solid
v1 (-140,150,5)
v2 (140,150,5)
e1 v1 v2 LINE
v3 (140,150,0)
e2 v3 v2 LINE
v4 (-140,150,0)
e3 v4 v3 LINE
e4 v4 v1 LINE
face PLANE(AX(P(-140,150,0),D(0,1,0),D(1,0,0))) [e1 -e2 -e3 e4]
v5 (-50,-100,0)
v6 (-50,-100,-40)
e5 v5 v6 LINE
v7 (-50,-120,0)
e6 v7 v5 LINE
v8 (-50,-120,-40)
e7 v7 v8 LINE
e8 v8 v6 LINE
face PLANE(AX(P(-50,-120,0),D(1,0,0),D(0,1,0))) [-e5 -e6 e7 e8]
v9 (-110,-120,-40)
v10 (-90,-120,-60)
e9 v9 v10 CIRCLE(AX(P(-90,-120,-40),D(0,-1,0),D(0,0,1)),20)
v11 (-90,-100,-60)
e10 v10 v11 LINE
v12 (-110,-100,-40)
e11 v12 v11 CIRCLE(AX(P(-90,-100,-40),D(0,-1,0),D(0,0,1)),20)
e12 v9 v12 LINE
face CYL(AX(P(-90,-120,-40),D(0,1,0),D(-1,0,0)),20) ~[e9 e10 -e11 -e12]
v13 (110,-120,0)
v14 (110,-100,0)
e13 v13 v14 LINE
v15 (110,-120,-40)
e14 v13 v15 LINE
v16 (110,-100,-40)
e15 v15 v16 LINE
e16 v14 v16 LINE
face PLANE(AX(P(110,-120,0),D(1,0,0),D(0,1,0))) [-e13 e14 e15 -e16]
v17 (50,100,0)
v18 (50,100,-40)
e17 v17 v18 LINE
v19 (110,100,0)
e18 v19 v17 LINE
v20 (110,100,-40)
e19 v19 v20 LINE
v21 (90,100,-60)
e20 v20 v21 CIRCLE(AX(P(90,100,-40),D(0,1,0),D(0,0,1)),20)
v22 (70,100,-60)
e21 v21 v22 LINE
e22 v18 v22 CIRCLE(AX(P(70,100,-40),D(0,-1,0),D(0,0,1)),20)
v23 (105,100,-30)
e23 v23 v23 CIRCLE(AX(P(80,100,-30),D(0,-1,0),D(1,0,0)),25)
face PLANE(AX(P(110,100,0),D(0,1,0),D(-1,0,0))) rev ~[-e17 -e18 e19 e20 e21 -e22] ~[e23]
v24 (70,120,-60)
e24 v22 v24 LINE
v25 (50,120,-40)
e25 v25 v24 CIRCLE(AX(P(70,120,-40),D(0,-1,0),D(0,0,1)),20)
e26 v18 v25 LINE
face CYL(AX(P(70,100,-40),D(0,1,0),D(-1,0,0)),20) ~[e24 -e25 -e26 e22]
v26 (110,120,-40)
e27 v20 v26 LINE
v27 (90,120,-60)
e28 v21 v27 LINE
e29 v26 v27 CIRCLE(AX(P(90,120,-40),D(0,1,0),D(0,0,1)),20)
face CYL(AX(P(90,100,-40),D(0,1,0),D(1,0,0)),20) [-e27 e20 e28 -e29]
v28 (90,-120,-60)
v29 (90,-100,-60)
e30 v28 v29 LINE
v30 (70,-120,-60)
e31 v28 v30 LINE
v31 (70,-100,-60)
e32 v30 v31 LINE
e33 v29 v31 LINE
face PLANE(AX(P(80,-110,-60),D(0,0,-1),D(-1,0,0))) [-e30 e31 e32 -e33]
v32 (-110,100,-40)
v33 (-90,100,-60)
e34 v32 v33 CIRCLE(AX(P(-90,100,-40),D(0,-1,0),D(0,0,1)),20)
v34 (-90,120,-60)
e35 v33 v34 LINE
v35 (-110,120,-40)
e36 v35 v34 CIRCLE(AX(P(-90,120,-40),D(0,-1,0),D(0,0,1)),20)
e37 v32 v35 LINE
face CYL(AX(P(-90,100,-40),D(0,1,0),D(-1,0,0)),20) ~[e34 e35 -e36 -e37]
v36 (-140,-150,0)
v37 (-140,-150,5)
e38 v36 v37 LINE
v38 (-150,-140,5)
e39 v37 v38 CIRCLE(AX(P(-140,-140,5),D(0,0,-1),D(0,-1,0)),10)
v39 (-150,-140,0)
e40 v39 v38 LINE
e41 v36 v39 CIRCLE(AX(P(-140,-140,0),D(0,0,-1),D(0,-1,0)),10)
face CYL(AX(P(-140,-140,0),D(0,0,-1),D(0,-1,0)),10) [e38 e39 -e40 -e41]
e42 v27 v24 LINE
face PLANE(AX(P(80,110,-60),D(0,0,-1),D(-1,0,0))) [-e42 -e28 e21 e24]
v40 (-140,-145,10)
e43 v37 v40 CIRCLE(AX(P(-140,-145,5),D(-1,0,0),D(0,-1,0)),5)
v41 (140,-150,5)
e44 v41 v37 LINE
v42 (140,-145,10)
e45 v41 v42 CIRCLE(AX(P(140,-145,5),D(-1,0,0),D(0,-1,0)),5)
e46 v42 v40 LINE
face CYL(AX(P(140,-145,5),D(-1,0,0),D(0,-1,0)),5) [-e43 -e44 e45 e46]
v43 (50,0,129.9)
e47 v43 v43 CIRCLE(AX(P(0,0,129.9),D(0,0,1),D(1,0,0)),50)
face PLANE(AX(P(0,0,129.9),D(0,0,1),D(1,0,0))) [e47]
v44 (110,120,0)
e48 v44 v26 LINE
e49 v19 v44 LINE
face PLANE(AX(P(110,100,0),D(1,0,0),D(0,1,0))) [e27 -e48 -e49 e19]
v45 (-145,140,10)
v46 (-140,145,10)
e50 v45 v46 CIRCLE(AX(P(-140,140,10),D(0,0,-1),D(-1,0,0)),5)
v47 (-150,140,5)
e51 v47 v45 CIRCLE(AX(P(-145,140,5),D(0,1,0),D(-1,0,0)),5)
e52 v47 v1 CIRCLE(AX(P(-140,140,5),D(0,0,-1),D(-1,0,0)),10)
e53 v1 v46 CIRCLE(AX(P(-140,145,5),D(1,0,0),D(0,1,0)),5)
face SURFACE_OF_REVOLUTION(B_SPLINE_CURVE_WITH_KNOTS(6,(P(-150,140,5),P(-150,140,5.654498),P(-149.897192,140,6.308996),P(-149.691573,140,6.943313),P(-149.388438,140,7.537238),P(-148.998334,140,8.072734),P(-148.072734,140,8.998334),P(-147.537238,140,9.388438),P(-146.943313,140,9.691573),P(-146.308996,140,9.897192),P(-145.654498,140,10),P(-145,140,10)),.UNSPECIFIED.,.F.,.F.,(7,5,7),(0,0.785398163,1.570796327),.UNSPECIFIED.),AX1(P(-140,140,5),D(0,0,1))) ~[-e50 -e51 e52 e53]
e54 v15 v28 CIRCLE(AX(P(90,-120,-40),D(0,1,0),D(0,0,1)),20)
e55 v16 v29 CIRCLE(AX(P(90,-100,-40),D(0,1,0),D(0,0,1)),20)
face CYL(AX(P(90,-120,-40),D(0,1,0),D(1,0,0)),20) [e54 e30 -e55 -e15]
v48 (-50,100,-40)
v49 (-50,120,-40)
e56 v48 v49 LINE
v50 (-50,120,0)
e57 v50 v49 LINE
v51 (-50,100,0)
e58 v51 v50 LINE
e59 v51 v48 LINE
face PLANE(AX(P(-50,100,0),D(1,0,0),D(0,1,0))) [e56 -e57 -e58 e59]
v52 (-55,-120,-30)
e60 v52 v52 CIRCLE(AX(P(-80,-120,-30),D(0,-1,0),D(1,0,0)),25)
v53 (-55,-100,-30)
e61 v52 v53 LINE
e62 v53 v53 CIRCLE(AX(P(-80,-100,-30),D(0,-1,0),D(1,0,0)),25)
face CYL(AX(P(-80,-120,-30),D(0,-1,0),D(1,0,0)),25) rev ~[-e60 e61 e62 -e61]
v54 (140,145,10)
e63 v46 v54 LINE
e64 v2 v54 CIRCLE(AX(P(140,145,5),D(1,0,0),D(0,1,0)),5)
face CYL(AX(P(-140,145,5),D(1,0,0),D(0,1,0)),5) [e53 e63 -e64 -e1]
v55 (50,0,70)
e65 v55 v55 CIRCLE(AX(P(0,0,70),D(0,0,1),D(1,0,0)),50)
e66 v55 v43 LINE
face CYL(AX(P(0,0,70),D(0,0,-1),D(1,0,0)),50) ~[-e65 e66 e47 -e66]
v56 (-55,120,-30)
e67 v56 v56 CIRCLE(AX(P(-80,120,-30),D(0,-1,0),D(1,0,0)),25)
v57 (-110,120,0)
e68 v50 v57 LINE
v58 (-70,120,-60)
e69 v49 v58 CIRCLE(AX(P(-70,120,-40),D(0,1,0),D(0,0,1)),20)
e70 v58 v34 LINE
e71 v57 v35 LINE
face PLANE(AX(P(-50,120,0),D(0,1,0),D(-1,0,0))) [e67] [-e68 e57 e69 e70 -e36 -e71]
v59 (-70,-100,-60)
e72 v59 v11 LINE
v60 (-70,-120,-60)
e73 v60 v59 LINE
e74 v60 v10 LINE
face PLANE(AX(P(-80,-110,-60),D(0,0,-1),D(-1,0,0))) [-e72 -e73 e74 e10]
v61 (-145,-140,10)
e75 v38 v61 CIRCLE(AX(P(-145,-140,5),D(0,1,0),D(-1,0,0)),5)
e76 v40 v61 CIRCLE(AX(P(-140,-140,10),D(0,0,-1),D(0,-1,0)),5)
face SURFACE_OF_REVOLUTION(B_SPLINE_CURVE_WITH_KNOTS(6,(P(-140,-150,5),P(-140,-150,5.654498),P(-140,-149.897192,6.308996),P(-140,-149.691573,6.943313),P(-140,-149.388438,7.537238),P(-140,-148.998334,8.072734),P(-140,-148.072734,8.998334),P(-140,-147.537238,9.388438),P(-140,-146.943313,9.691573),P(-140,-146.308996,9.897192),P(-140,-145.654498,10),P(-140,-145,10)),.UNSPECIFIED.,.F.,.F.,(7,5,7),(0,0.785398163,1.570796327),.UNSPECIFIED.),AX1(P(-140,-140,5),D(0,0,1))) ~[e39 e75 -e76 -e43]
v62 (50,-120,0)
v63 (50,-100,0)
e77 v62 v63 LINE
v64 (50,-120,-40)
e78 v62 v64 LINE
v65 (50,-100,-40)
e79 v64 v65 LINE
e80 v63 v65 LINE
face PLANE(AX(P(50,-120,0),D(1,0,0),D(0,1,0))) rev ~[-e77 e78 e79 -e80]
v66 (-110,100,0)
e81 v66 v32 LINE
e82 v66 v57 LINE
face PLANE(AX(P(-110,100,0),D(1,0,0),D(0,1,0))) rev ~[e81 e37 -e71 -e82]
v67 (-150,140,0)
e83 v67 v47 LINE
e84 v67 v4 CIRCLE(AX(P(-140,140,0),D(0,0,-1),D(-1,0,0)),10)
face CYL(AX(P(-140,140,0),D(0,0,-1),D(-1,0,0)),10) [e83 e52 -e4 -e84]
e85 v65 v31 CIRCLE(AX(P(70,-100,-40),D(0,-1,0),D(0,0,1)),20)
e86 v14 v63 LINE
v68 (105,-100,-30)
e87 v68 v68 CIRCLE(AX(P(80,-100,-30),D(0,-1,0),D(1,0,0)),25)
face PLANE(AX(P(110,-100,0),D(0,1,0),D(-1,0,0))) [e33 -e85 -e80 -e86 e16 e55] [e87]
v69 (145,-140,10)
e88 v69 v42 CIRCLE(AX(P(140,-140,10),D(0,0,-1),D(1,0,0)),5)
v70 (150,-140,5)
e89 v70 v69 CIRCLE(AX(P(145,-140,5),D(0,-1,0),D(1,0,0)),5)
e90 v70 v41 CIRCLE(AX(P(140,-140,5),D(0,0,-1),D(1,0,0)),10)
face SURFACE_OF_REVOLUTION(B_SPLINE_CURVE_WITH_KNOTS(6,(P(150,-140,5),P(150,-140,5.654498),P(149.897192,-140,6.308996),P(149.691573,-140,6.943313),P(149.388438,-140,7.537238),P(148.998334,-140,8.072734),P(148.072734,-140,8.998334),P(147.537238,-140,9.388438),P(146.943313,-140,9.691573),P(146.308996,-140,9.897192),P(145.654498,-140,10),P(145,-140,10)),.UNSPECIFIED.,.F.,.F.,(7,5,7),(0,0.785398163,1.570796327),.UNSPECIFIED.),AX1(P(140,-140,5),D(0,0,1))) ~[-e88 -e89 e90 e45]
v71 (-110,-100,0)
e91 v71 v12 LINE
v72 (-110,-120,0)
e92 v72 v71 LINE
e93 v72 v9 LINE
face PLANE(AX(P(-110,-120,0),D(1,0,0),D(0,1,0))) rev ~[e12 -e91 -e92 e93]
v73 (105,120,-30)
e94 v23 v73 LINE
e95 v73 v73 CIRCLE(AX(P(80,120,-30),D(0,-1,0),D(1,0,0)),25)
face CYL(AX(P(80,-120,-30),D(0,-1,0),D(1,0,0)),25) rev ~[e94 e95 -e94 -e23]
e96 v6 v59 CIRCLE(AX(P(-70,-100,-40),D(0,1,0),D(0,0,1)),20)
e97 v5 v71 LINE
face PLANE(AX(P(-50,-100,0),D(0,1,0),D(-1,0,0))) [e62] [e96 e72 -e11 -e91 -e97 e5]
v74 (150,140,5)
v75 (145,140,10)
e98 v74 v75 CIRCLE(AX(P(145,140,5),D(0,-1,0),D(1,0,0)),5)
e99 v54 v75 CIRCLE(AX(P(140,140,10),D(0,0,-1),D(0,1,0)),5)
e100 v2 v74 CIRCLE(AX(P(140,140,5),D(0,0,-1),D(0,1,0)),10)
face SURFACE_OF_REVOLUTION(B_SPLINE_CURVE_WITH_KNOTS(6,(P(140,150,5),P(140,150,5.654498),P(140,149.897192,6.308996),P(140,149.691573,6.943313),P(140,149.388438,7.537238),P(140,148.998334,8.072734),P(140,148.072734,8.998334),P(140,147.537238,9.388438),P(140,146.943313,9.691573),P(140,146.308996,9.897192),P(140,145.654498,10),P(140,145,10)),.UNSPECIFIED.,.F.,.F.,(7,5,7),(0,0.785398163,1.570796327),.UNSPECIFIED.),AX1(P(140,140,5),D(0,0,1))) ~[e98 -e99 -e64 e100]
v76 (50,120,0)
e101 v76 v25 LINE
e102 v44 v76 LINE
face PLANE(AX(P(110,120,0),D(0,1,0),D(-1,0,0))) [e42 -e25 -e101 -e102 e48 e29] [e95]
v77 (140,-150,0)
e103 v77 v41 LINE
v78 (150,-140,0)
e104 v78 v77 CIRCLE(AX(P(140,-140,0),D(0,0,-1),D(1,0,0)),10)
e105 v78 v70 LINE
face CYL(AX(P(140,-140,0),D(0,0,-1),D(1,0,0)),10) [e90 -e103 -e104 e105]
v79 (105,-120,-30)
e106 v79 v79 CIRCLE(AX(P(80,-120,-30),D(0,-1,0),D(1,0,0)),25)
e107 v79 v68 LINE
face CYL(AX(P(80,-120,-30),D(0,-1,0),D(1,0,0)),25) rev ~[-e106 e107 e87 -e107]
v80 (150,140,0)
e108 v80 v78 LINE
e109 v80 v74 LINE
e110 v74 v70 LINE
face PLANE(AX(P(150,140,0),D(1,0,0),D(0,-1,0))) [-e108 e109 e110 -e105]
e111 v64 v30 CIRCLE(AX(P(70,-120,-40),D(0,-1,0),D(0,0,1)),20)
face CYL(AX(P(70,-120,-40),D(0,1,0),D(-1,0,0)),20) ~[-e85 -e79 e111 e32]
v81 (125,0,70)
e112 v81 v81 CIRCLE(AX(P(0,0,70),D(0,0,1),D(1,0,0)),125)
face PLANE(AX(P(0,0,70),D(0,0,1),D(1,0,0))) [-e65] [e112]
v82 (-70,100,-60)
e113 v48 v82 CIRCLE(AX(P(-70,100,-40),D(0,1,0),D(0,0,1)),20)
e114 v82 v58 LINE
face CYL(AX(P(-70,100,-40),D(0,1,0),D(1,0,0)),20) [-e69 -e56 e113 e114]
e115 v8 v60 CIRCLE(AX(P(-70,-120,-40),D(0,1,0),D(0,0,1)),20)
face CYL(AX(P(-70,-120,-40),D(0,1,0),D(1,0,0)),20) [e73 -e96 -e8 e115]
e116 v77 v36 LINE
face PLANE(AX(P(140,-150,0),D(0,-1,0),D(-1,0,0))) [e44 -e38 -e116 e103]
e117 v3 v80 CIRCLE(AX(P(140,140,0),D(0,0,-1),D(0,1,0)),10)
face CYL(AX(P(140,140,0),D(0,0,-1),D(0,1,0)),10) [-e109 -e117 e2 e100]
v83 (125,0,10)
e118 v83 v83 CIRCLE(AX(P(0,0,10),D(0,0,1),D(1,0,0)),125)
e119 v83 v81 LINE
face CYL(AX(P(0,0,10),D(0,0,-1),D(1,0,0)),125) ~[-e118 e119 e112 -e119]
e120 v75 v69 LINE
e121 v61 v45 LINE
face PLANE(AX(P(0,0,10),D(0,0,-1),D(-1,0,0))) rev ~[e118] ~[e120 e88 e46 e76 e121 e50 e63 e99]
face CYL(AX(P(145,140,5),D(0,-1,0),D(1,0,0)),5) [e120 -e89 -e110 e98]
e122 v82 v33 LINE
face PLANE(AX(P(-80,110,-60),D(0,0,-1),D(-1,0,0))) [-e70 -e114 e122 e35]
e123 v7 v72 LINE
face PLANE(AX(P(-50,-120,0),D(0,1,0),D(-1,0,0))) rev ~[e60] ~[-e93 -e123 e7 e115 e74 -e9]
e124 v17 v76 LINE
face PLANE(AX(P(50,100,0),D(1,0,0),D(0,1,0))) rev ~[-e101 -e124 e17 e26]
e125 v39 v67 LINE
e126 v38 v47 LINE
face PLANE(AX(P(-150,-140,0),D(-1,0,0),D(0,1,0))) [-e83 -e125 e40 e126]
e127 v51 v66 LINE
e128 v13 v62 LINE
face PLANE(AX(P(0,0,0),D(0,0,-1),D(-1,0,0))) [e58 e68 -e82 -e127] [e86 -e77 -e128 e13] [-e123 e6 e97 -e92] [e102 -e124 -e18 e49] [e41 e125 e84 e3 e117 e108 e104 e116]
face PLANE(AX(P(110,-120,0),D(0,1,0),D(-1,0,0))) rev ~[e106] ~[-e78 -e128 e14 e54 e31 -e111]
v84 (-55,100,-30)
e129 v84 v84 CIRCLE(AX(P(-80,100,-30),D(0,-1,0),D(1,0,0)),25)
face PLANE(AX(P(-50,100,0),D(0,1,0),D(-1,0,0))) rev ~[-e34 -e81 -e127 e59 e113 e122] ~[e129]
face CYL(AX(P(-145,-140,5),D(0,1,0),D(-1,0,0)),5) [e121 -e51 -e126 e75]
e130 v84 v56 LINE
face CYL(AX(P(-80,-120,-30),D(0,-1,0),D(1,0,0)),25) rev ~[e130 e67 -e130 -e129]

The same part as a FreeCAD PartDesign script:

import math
import FreeCAD as App
import Part
import Sketcher
Q = App.Units.Quantity


def edges_at(feature, points):
    """Names of the edges that pass closest to the given points."""
    edges = feature.Shape.Edges
    near = lambda p: min(range(len(edges)), key=lambda i: edges[i].distToShape(Part.Vertex(*p))[0])
    return sorted({f"Edge{near(p) + 1}" for p in points})

doc = App.newDocument("Part")
body = doc.addObject("PartDesign::Body", "Body")

# Sketch on XY plane
sketch1 = body.newObject("Sketcher::SketchObject", "Sketch")
sketch1.AttachmentSupport = (doc.getObject("XY_Plane"), [""])
sketch1.MapMode = "FlatFace"
sketch1.addGeometry([
    Part.LineSegment(App.Vector(140, 150, 0), App.Vector(-140, 150, 0)),  # 0
    Part.ArcOfCircle(Part.Circle(App.Vector(-140, 140, 0), App.Vector(0, 0, 1), 10), math.radians(90), math.radians(180)),  # 1
    Part.LineSegment(App.Vector(-150, 140, 0), App.Vector(-150, -140, 0)),  # 2
    Part.ArcOfCircle(Part.Circle(App.Vector(-140, -140, 0), App.Vector(0, 0, 1), 10), math.radians(180), math.radians(270)),  # 3
    Part.LineSegment(App.Vector(-140, -150, 0), App.Vector(140, -150, 0)),  # 4
    Part.ArcOfCircle(Part.Circle(App.Vector(140, -140, 0), App.Vector(0, 0, 1), 10), math.radians(-90), math.radians(0)),  # 5
    Part.LineSegment(App.Vector(150, -140, 0), App.Vector(150, 140, 0)),  # 6
    Part.ArcOfCircle(Part.Circle(App.Vector(140, 140, 0), App.Vector(0, 0, 1), 10), math.radians(0), math.radians(90)),  # 7
], False)
sketch1.addConstraint([
    Sketcher.Constraint("Tangent", 0, 2, 1, 1),
    Sketcher.Constraint("Tangent", 1, 2, 2, 1),
    Sketcher.Constraint("Tangent", 2, 2, 3, 1),
    Sketcher.Constraint("Tangent", 3, 2, 4, 1),
    Sketcher.Constraint("Tangent", 4, 2, 5, 1),
    Sketcher.Constraint("Tangent", 5, 2, 6, 1),
    Sketcher.Constraint("Tangent", 6, 2, 7, 1),
    Sketcher.Constraint("Tangent", 7, 2, 0, 1),
    Sketcher.Constraint("Horizontal", 0),
    Sketcher.Constraint("Vertical", 2),
    Sketcher.Constraint("Horizontal", 4),
    Sketcher.Constraint("Vertical", 6),
    Sketcher.Constraint("Equal", 1, 3),
    Sketcher.Constraint("Equal", 3, 5),
    Sketcher.Constraint("Equal", 5, 7),
    Sketcher.Constraint("Symmetric", 1, 3, 5, 3, -1, 1),
    Sketcher.Constraint("Equal", 4, 2),
    Sketcher.Constraint("Radius", 1, Q("10 mm")),
    Sketcher.Constraint("DistanceX", 0, 2, 0, 1, Q("280 mm")),
])
pad1 = body.newObject("PartDesign::Pad", "Pad")
pad1.Profile = sketch1
pad1.Length = 10
doc.recompute()

fillet = body.newObject("PartDesign::Fillet", "Fillet")
fillet.Base = (pad1, edges_at(pad1, [
    (147.071, -147.071, 10),
    (150, 0, 10),
    (147.071, 147.071, 10),
    (0, 150, 10),
    (-147.071, 147.071, 10),
    (-150, 0, 10),
    (-147.071, -147.071, 10),
    (0, -150, 10),
]))
fillet.Radius = 5

# Sketch on XY plane
sketch2 = body.newObject("Sketcher::SketchObject", "Sketch001")
sketch2.AttachmentSupport = (doc.getObject("XY_Plane"), [""])
sketch2.MapMode = "FlatFace"
sketch2.addGeometry([
    Part.LineSegment(App.Vector(-50, 120, 0), App.Vector(-50, 100, 0)),  # 0
    Part.LineSegment(App.Vector(-50, 100, 0), App.Vector(-110, 100, 0)),  # 1
    Part.LineSegment(App.Vector(-110, 100, 0), App.Vector(-110, 120, 0)),  # 2
    Part.LineSegment(App.Vector(-110, 120, 0), App.Vector(-50, 120, 0)),  # 3
    Part.LineSegment(App.Vector(110, 120, 0), App.Vector(110, 100, 0)),  # 4
    Part.LineSegment(App.Vector(110, 100, 0), App.Vector(50, 100, 0)),  # 5
    Part.LineSegment(App.Vector(50, 100, 0), App.Vector(50, 120, 0)),  # 6
    Part.LineSegment(App.Vector(50, 120, 0), App.Vector(110, 120, 0)),  # 7
    Part.LineSegment(App.Vector(-50, -100, 0), App.Vector(-50, -120, 0)),  # 8
    Part.LineSegment(App.Vector(-50, -120, 0), App.Vector(-110, -120, 0)),  # 9
    Part.LineSegment(App.Vector(-110, -120, 0), App.Vector(-110, -100, 0)),  # 10
    Part.LineSegment(App.Vector(-110, -100, 0), App.Vector(-50, -100, 0)),  # 11
    Part.LineSegment(App.Vector(110, -100, 0), App.Vector(110, -120, 0)),  # 12
    Part.LineSegment(App.Vector(110, -120, 0), App.Vector(50, -120, 0)),  # 13
    Part.LineSegment(App.Vector(50, -120, 0), App.Vector(50, -100, 0)),  # 14
    Part.LineSegment(App.Vector(50, -100, 0), App.Vector(110, -100, 0)),  # 15
], False)
sketch2.addConstraint([
    Sketcher.Constraint("Coincident", 0, 2, 1, 1),
    Sketcher.Constraint("Coincident", 1, 2, 2, 1),
    Sketcher.Constraint("Coincident", 2, 2, 3, 1),
    Sketcher.Constraint("Coincident", 3, 2, 0, 1),
    Sketcher.Constraint("Coincident", 4, 2, 5, 1),
    Sketcher.Constraint("Coincident", 5, 2, 6, 1),
    Sketcher.Constraint("Coincident", 6, 2, 7, 1),
    Sketcher.Constraint("Coincident", 7, 2, 4, 1),
    Sketcher.Constraint("Coincident", 8, 2, 9, 1),
    Sketcher.Constraint("Coincident", 9, 2, 10, 1),
    Sketcher.Constraint("Coincident", 10, 2, 11, 1),
    Sketcher.Constraint("Coincident", 11, 2, 8, 1),
    Sketcher.Constraint("Coincident", 12, 2, 13, 1),
    Sketcher.Constraint("Coincident", 13, 2, 14, 1),
    Sketcher.Constraint("Coincident", 14, 2, 15, 1),
    Sketcher.Constraint("Coincident", 15, 2, 12, 1),
    Sketcher.Constraint("Vertical", 0),
    Sketcher.Constraint("Horizontal", 1),
    Sketcher.Constraint("Vertical", 2),
    Sketcher.Constraint("Horizontal", 3),
    Sketcher.Constraint("Vertical", 4),
    Sketcher.Constraint("Horizontal", 5),
    Sketcher.Constraint("Vertical", 6),
    Sketcher.Constraint("Horizontal", 7),
    Sketcher.Constraint("Vertical", 8),
    Sketcher.Constraint("Horizontal", 9),
    Sketcher.Constraint("Vertical", 10),
    Sketcher.Constraint("Horizontal", 11),
    Sketcher.Constraint("Vertical", 12),
    Sketcher.Constraint("Horizontal", 13),
    Sketcher.Constraint("Vertical", 14),
    Sketcher.Constraint("Horizontal", 15),
    Sketcher.Constraint("Symmetric", 6, 2, 8, 2, -1, 1),
    Sketcher.Constraint("Symmetric", 4, 2, 10, 2, -1, 1),
    Sketcher.Constraint("Symmetric", 2, 2, 12, 2, -1, 1),
    Sketcher.Constraint("Symmetric", 0, 2, 14, 2, -1, 1),
    Sketcher.Constraint("Symmetric", 1, 2, 4, 2, -2),
    Sketcher.Constraint("Symmetric", 3, 2, 6, 2, -2),
    Sketcher.Constraint("DistanceX", 1, 2, 1, 1, Q("60 mm")),
    Sketcher.Constraint("DistanceY", 0, 2, 0, 1, Q("20 mm")),
    Sketcher.Constraint("DistanceX", 0, 2, -1, 1, Q("50 mm")),
    Sketcher.Constraint("DistanceY", -1, 1, 0, 2, Q("100 mm")),
])
pad2 = body.newObject("PartDesign::Pad", "Pad001")
pad2.Profile = sketch2
pad2.Length = 60
pad2.Reversed = True
doc.recompute()

fillet2 = body.newObject("PartDesign::Fillet", "Fillet001")
fillet2.Base = (pad2, edges_at(pad2, [
    (-110, 110, -60),
    (-50, 110, -60),
    (50, 110, -60),
    (110, 110, -60),
    (-50, -110, -60),
    (-110, -110, -60),
    (110, -110, -60),
    (50, -110, -60),
]))
fillet2.Radius = 20

# Sketch on XZ plane
sketch3 = body.newObject("Sketcher::SketchObject", "Sketch002")
sketch3.AttachmentSupport = (doc.getObject("XZ_Plane"), [""])
sketch3.MapMode = "FlatFace"
sketch3.AttachmentOffset = App.Placement(App.Vector(0, 0, 120), App.Rotation())
sketch3.addGeometry([
    Part.Circle(App.Vector(-80, -30, 0), App.Vector(0, 0, 1), 25),
    Part.Circle(App.Vector(80, -30, 0), App.Vector(0, 0, 1), 25),
], False)
sketch3.addConstraint([
    Sketcher.Constraint("Equal", 0, 1),
    Sketcher.Constraint("Symmetric", 0, 3, 1, 3, -2),
    Sketcher.Constraint("Diameter", 0, Q("50 mm")),
    Sketcher.Constraint("DistanceX", 0, 3, -1, 1, Q("80 mm")),
    Sketcher.Constraint("DistanceY", 0, 3, -1, 1, Q("30 mm")),
])
pocket1 = body.newObject("PartDesign::Pocket", "Pocket")
pocket1.Profile = sketch3
pocket1.Type = "ThroughAll"

# Sketch on XY plane
sketch4 = body.newObject("Sketcher::SketchObject", "Sketch003")
sketch4.AttachmentSupport = (doc.getObject("XY_Plane"), [""])
sketch4.MapMode = "FlatFace"
sketch4.AttachmentOffset = App.Placement(App.Vector(0, 0, 10), App.Rotation())
sketch4.addGeometry(Part.Circle(App.Vector(0, 0, 0), App.Vector(0, 0, 1), 125), False)
sketch4.addConstraint([
    Sketcher.Constraint("Coincident", 0, 3, -1, 1),
    Sketcher.Constraint("Diameter", 0, Q("250 mm")),
])
pad3 = body.newObject("PartDesign::Pad", "Pad002")
pad3.Profile = sketch4
pad3.Length = 60

# Sketch on XY plane
sketch5 = body.newObject("Sketcher::SketchObject", "Sketch004")
sketch5.AttachmentSupport = (doc.getObject("XY_Plane"), [""])
sketch5.MapMode = "FlatFace"
sketch5.AttachmentOffset = App.Placement(App.Vector(0, 0, 70), App.Rotation())
sketch5.addGeometry(Part.Circle(App.Vector(0, 0, 0), App.Vector(0, 0, 1), 50), False)
sketch5.addConstraint([
    Sketcher.Constraint("Coincident", 0, 3, -1, 1),
    Sketcher.Constraint("Diameter", 0, Q("100 mm")),
])
pad4 = body.newObject("PartDesign::Pad", "Pad003")
pad4.Profile = sketch5
pad4.Length = 59.9

doc.recompute()
